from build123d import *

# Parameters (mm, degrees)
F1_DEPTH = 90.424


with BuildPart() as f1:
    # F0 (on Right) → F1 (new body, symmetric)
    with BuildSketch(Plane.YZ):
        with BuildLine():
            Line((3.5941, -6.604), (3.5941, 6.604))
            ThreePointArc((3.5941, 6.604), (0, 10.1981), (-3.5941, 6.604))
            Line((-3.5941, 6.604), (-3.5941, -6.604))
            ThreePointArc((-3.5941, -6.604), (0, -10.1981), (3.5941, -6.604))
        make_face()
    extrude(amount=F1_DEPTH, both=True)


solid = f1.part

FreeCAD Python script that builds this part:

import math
import FreeCAD as App
import Part
import Sketcher

V = App.Vector
Q = App.Units.Quantity

doc = App.newDocument("Part")
params = doc.addObject("Spreadsheet::Sheet", "Params")
for row, (alias, value) in enumerate([
    ("sketch1_height", "0.52 in"),
    ("pad1_length", "7.12 in"),
], start=1):
    params.set(f"A{row}", alias)
    params.set(f"B{row}", "=" + value)
    params.setAlias(f"B{row}", alias)

body = doc.addObject("PartDesign::Body", "Body")

sketch1 = doc.addObject("Sketcher::SketchObject", "Sketch")
body.addObject(sketch1)
sketch1.AttachmentSupport = (doc.YZ_Plane, [""])
sketch1.MapMode = "FlatFace"
sketch1.addGeometry([
    Part.LineSegment(V(3.6, -6.6, 0), V(3.6, 6.6, 0)),
    Part.ArcOfCircle(Part.Circle(V(0, 6.6, 0), V(0, 0, 1), 3.6), math.radians(0), math.radians(180)),
    Part.LineSegment(V(-3.6, 6.6, 0), V(-3.6, -6.6, 0)),
    Part.ArcOfCircle(Part.Circle(V(0, -6.6, 0), V(0, 0, 1), 3.6), math.radians(180), math.radians(360)),
], False)
sketch1.addConstraint([
    Sketcher.Constraint("Tangent", 0, 2, 1, 1),
    Sketcher.Constraint("Tangent", 1, 2, 2, 1),
    Sketcher.Constraint("Tangent", 2, 2, 3, 1),
    Sketcher.Constraint("Tangent", 3, 2, 0, 1),
    Sketcher.Constraint("Vertical", 0),
    Sketcher.Constraint("Vertical", 2),
    Sketcher.Constraint("Symmetric", 1, 3, 3, 3, -1, 1),
    Sketcher.Constraint("DistanceY", 0, 1, 0, 2, Q("0.52 in")),
    Sketcher.Constraint("Radius", 1, Q("0.1415 in")),
])
sketch1.setExpression("Constraints[7]", "Params.sketch1_height")
pad1 = doc.addObject("PartDesign::Pad", "Pad")
body.addObject(pad1)
pad1.Profile = sketch1
pad1.setExpression("Length", "Params.pad1_length")
pad1.Midplane = True

doc.recompute()
